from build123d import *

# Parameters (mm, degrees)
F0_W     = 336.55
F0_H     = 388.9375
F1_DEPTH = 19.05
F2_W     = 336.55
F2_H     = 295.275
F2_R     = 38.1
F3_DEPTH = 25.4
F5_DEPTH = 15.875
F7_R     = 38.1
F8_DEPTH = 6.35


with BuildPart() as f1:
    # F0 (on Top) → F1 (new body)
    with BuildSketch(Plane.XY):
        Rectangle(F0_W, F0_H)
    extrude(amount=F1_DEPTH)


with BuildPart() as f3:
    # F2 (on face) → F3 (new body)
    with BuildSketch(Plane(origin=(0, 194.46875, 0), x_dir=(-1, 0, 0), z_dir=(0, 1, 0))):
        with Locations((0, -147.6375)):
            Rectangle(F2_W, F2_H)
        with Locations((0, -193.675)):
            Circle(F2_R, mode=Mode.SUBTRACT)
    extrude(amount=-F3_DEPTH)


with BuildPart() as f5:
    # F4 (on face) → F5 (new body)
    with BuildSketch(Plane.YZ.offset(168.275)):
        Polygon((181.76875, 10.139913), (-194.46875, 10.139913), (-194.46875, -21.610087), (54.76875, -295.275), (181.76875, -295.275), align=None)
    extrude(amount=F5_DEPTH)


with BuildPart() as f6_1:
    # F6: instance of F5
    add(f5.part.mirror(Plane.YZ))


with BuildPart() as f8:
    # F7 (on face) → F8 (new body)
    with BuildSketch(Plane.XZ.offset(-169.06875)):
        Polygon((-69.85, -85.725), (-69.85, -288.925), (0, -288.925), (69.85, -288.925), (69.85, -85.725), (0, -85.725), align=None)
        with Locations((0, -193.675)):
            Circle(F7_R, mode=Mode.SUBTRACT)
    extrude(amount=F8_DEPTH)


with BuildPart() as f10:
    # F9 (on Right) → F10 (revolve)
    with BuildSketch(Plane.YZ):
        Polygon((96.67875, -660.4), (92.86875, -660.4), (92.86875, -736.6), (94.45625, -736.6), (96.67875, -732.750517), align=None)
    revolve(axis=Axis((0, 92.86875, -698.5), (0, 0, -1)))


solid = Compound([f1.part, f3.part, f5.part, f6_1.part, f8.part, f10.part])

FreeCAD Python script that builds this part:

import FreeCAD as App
import Part
import Sketcher
from FreeCAD import Vector
Q = App.Units.Quantity

doc = App.newDocument("Part")
params = doc.addObject("Spreadsheet::Sheet", "Params")
for row, (alias, value) in enumerate([
    ("sketch1_width", "13.25 in"),
    ("sketch1_height", "15.3125 in"),
    ("pad1_length", "0.75 in"),
    ("sketch2_diameter", "3 in"),
    ("sketch2_width", "13.25 in"),
    ("sketch2_height", "11.625 in"),
    ("pad2_length", "1 in"),
    ("sketch3_width", "5 in"),
    ("sketch3_height", "1.25 in"),
    ("sketch3_width2", "14.8125 in"),
    ("pad3_length", "0.625 in"),
    ("sketch4_diameter", "3 in"),
    ("sketch4_height", "8 in"),
    ("sketch4_width", "5.5 in"),
    ("pad4_length", "0.25 in"),
    ("sketch5_height", "3 in"),
    ("sketch5_width", "0.15 in"),
    ("sketch5_width2", "0.0625 in"),
    ("revolution_angle", "360 deg"),
], start=1):
    params.set(f"A{row}", alias)
    params.set(f"B{row}", "=" + value)
    params.setAlias(f"B{row}", alias)

body = doc.addObject("PartDesign::Body", "Body")

# Sketch on XY plane
sketch1 = body.newObject("Sketcher::SketchObject", "Sketch")
sketch1.AttachmentSupport = (doc.getObject("XY_Plane"), [""])
sketch1.MapMode = "FlatFace"
sketch1.addGeometry([
    Part.LineSegment(Vector(-168, 194, 0), Vector(-168, -194, 0)),
    Part.LineSegment(Vector(-168, -194, 0), Vector(168, -194, 0)),
    Part.LineSegment(Vector(168, -194, 0), Vector(168, 194, 0)),
    Part.LineSegment(Vector(168, 194, 0), Vector(-168, 194, 0)),
], False)
sketch1.addConstraint([
    Sketcher.Constraint("Coincident", 0, 2, 1, 1),
    Sketcher.Constraint("Coincident", 1, 2, 2, 1),
    Sketcher.Constraint("Coincident", 2, 2, 3, 1),
    Sketcher.Constraint("Coincident", 3, 2, 0, 1),
    Sketcher.Constraint("Vertical", 0),
    Sketcher.Constraint("Horizontal", 1),
    Sketcher.Constraint("Vertical", 2),
    Sketcher.Constraint("Horizontal", 3),
    Sketcher.Constraint("Symmetric", 0, 2, 2, 2, -1, 1),
    Sketcher.Constraint("DistanceX", 1, 1, 1, 2, Q("13.25 in")),
    Sketcher.Constraint("DistanceY", 0, 2, 0, 1, Q("15.3125 in")),
])
sketch1.setExpression("Constraints[9]", "Params.sketch1_width")
sketch1.setExpression("Constraints[10]", "Params.sketch1_height")
pad1 = body.newObject("PartDesign::Pad", "Pad")
pad1.Profile = sketch1
pad1.setExpression("Length", "Params.pad1_length")
body2 = doc.addObject("PartDesign::Body", "Body001")

# Sketch on XZ plane
sketch2 = body2.newObject("Sketcher::SketchObject", "Sketch001")
sketch2.AttachmentSupport = (doc.getObject("XZ_Plane001"), [""])
sketch2.MapMode = "FlatFace"
sketch2.AttachmentOffset = App.Placement(Vector(0, 0, -7.65625 * 25.4), App.Rotation())
sketch2.addGeometry([
    Part.LineSegment(Vector(168, 0, 0), Vector(168, -295, 0)),  # 0
    Part.LineSegment(Vector(168, -295, 0), Vector(-168, -295, 0)),  # 1
    Part.LineSegment(Vector(-168, -295, 0), Vector(-168, 0, 0)),  # 2
    Part.LineSegment(Vector(-168, 0, 0), Vector(168, 0, 0)),  # 3
    Part.Circle(Vector(0, -194, 0), Vector(0, 0, 1), 38),  # 4
], False)
sketch2.addConstraint([
    Sketcher.Constraint("Coincident", 0, 2, 1, 1),
    Sketcher.Constraint("Coincident", 1, 2, 2, 1),
    Sketcher.Constraint("Coincident", 2, 2, 3, 1),
    Sketcher.Constraint("Coincident", 3, 2, 0, 1),
    Sketcher.Constraint("Vertical", 0),
    Sketcher.Constraint("Horizontal", 1),
    Sketcher.Constraint("Vertical", 2),
    Sketcher.Constraint("Horizontal", 3),
    Sketcher.Constraint("Symmetric", 2, 2, 3, 2, -1, 1),
    Sketcher.Constraint("PointOnObject", 4, 3, -2),
    Sketcher.Constraint("Diameter", 4, Q("3 in")),
    Sketcher.Constraint("DistanceY", 0, 2, 4, 3, Q("4 in")),
    Sketcher.Constraint("DistanceX", 1, 2, 1, 1, Q("13.25 in")),
    Sketcher.Constraint("DistanceY", 0, 2, 0, 1, Q("11.625 in")),
])
sketch2.setExpression("Constraints[10]", "Params.sketch2_diameter")
sketch2.setExpression("Constraints[12]", "Params.sketch2_width")
sketch2.setExpression("Constraints[13]", "Params.sketch2_height")
pad2 = body2.newObject("PartDesign::Pad", "Pad001")
pad2.Profile = sketch2
pad2.setExpression("Length", "Params.pad2_length")
body3 = doc.addObject("PartDesign::Body", "Body002")

# Sketch on YZ plane
sketch3 = body3.newObject("Sketcher::SketchObject", "Sketch002")
sketch3.AttachmentSupport = (doc.getObject("YZ_Plane002"), [""])
sketch3.MapMode = "FlatFace"
sketch3.AttachmentOffset = App.Placement(Vector(0, 0, 6.625 * 25.4), App.Rotation())
sketch3.addGeometry([
    Part.LineSegment(Vector(182, 10, 0), Vector(-194, 10, 0)),  # 0
    Part.LineSegment(Vector(-194, 10, 0), Vector(-194, -22, 0)),  # 1
    Part.LineSegment(Vector(-194, -22, 0), Vector(55, -295, 0)),  # 2
    Part.LineSegment(Vector(55, -295, 0), Vector(182, -295, 0)),  # 3
    Part.LineSegment(Vector(182, -295, 0), Vector(182, 10, 0)),  # 4
], False)
sketch3.addConstraint([
    Sketcher.Constraint("Coincident", 0, 2, 1, 1),
    Sketcher.Constraint("Coincident", 1, 2, 2, 1),
    Sketcher.Constraint("Coincident", 2, 2, 3, 1),
    Sketcher.Constraint("Coincident", 3, 2, 4, 1),
    Sketcher.Constraint("Coincident", 4, 2, 0, 1),
    Sketcher.Constraint("Horizontal", 0),
    Sketcher.Constraint("Vertical", 1),
    Sketcher.Constraint("Horizontal", 3),
    Sketcher.Constraint("Vertical", 4),
    Sketcher.Constraint("DistanceX", 3, 1, 3, 2, Q("5 in")),
    Sketcher.Constraint("DistanceY", 1, 2, 1, 1, Q("1.25 in")),
    Sketcher.Constraint("DistanceX", 0, 2, 0, 1, Q("14.8125 in")),
    Sketcher.Constraint("DistanceX", 0, 2, -1, 1, Q("7.65625 in")),
    Sketcher.Constraint("DistanceY", 2, 2, -1, 1, Q("11.625 in")),
    Sketcher.Constraint("Distance", 2, Q("370.151072 mm")),
])
sketch3.setExpression("Constraints[9]", "Params.sketch3_width")
sketch3.setExpression("Constraints[10]", "Params.sketch3_height")
sketch3.setExpression("Constraints[11]", "Params.sketch3_width2")
pad3 = body3.newObject("PartDesign::Pad", "Pad002")
pad3.Profile = sketch3
pad3.setExpression("Length", "Params.pad3_length")
body4 = doc.addObject("PartDesign::Body", "Body003")
doc.recompute()

mirroring = doc.addObject("Part::Mirroring", "Mirroring")
mirroring.Source = body3
mirroring.Base = Vector(0, 0, 0)
mirroring.Normal = Vector(1, 0, 0)
body4.BaseFeature = mirroring
doc.recompute()
body5 = doc.addObject("PartDesign::Body", "Body004")

# Sketch on XZ plane
sketch4 = body5.newObject("Sketcher::SketchObject", "Sketch003")
sketch4.AttachmentSupport = (doc.getObject("XZ_Plane004"), [""])
sketch4.MapMode = "FlatFace"
sketch4.AttachmentOffset = App.Placement(Vector(0, 0, -6.65625 * 25.4), App.Rotation())
sketch4.addGeometry([
    Part.LineSegment(Vector(-70, -86, 0), Vector(-70, -289, 0)),  # 0
    Part.LineSegment(Vector(-70, -289, 0), Vector(70, -289, 0)),  # 1
    Part.LineSegment(Vector(70, -289, 0), Vector(70, -86, 0)),  # 2
    Part.LineSegment(Vector(70, -86, 0), Vector(-70, -86, 0)),  # 3
    Part.Circle(Vector(0, -194, 0), Vector(0, 0, 1), 38),  # 4
], False)
sketch4.addConstraint([
    Sketcher.Constraint("Coincident", 0, 2, 1, 1),
    Sketcher.Constraint("Coincident", 1, 2, 2, 1),
    Sketcher.Constraint("Coincident", 2, 2, 3, 1),
    Sketcher.Constraint("Coincident", 3, 2, 0, 1),
    Sketcher.Constraint("Vertical", 0),
    Sketcher.Constraint("Horizontal", 1),
    Sketcher.Constraint("Vertical", 2),
    Sketcher.Constraint("Horizontal", 3),
    Sketcher.Constraint("PointOnObject", 4, 3, -2),
    Sketcher.Constraint("Diameter", 4, Q("3 in")),
    Sketcher.Constraint("DistanceY", 0, 2, 0, 1, Q("8 in")),
    Sketcher.Constraint("DistanceX", 1, 1, 1, 2, Q("5.5 in")),
    Sketcher.Constraint("DistanceX", 0, 2, -1, 1, Q("2.75 in")),
    Sketcher.Constraint("DistanceY", 0, 2, 4, 3, Q("3.75 in")),
    Sketcher.Constraint("DistanceY", 4, 3, -1, 1, Q("7.625 in")),
])
sketch4.setExpression("Constraints[9]", "Params.sketch4_diameter")
sketch4.setExpression("Constraints[10]", "Params.sketch4_height")
sketch4.setExpression("Constraints[11]", "Params.sketch4_width")
pad4 = body5.newObject("PartDesign::Pad", "Pad003")
pad4.Profile = sketch4
pad4.setExpression("Length", "Params.pad4_length")
body6 = doc.addObject("PartDesign::Body", "Body005")

# Sketch on YZ plane
sketch5 = body6.newObject("Sketcher::SketchObject", "Sketch004")
sketch5.AttachmentSupport = (doc.getObject("YZ_Plane005"), [""])
sketch5.MapMode = "FlatFace"
sketch5.addGeometry([
    Part.LineSegment(Vector(96.7, -660.4, 0), Vector(92.9, -660.4, 0)),  # 0
    Part.LineSegment(Vector(92.9, -660.4, 0), Vector(92.9, -736.6, 0)),  # 1
    Part.LineSegment(Vector(92.9, -736.6, 0), Vector(94.5, -736.6, 0)),  # 2
    Part.LineSegment(Vector(94.5, -736.6, 0), Vector(96.7, -732.8, 0)),  # 3
    Part.LineSegment(Vector(96.7, -732.8, 0), Vector(96.7, -660.4, 0)),  # 4
], False)
sketch5.addGeometry(Part.LineSegment(Vector(92.9, -660.4, 0), Vector(92.9, -736.6, 0)), True)  # axis
sketch5.addConstraint([
    Sketcher.Constraint("Coincident", 0, 2, 1, 1),
    Sketcher.Constraint("Coincident", 1, 2, 2, 1),
    Sketcher.Constraint("Coincident", 2, 2, 3, 1),
    Sketcher.Constraint("Coincident", 3, 2, 4, 1),
    Sketcher.Constraint("Coincident", 4, 2, 0, 1),
    Sketcher.Constraint("Horizontal", 0),
    Sketcher.Constraint("Vertical", 1),
    Sketcher.Constraint("Horizontal", 2),
    Sketcher.Constraint("Vertical", 4),
    Sketcher.Constraint("Vertical", 5),
    Sketcher.Constraint("Coincident", 5, 1, 0, 2),
    Sketcher.Constraint("Horizontal", 2, 2, 5, 2),
    Sketcher.Constraint("DistanceY", 1, 2, 1, 1, Q("3 in")),
    Sketcher.Constraint("DistanceY", 0, 2, -1, 1, Q("26 in")),
    Sketcher.Constraint("Angle", 3, Q("60.000001 deg")),
    Sketcher.Constraint("DistanceX", 0, 2, 0, 1, Q("0.15 in")),
    Sketcher.Constraint("DistanceX", 2, 1, 2, 2, Q("0.0625 in")),
    Sketcher.Constraint("DistanceX", -1, 1, 0, 2, Q("3.65625 in")),
])
sketch5.setExpression("Constraints[12]", "Params.sketch5_height")
sketch5.setExpression("Constraints[15]", "Params.sketch5_width")
sketch5.setExpression("Constraints[16]", "Params.sketch5_width2")
revolution = body6.newObject("PartDesign::Revolution", "Revolution")
revolution.Profile = sketch5
revolution.ReferenceAxis = (sketch5, ["Axis0"])
revolution.setExpression("Angle", "Params.revolution_angle")
mirroring.Visibility = False

doc.recompute()
